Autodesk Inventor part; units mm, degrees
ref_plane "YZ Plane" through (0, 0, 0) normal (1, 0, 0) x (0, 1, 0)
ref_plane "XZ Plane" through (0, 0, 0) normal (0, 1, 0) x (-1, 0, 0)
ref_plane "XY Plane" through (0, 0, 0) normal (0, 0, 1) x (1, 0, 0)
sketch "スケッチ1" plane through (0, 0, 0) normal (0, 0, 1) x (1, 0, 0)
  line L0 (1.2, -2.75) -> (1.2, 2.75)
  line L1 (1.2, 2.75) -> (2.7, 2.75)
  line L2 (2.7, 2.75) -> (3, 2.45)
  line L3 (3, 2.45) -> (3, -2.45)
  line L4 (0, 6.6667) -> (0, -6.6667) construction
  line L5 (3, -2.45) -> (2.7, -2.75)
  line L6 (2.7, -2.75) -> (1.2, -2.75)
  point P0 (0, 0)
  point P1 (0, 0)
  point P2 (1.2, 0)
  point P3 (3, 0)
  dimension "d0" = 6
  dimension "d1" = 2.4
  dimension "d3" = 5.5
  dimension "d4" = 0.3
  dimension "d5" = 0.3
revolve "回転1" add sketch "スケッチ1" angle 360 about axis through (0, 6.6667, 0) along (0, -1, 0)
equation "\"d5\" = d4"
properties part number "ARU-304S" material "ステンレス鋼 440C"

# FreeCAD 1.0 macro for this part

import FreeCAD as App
import Part
import Sketcher

V = App.Vector
Q = App.Units.Quantity


def add_polygon(sketch, points):
    """Adds a closed chain of lines whose ends are joined by coincident constraints."""
    first, n = sketch.GeometryCount, len(points)
    for a, b in zip(points, points[1:] + points[:1]):
        sketch.addGeometry(Part.LineSegment(App.Vector(*a, 0), App.Vector(*b, 0)), False)
    for i in range(n):
        sketch.addConstraint(Sketcher.Constraint("Coincident", first + i, 2, first + (i + 1) % n, 1))

doc = App.newDocument("Part")
body = doc.addObject("PartDesign::Body", "Body")

# Sketch on XY plane
sketch1 = body.newObject("Sketcher::SketchObject", "Sketch")
sketch1.AttachmentSupport = (doc.getObject("XY_Plane"), [""])
sketch1.MapMode = "FlatFace"
add_polygon(sketch1, [(1.2, 2.75), (1.2, -2.75), (2.7, -2.75), (3, -2.45), (3, 2.45), (2.7, 2.75)])  # lines 0-5
sketch1.addConstraint([
    Sketcher.Constraint("Vertical", 0),
    Sketcher.Constraint("Horizontal", 1),
    Sketcher.Constraint("Vertical", 3),
    Sketcher.Constraint("Horizontal", 5),
    Sketcher.Constraint("Symmetric", 1, 2, 4, 2, -1),
    Sketcher.Constraint("Perpendicular", 2, 4),
    Sketcher.Constraint("Equal", 2, 4),
    Sketcher.Constraint("DistanceY", 0, 2, 0, 1, Q("5.5 mm")),
    Sketcher.Constraint("DistanceX", 1, 2, 2, 2, Q("0.3 mm")),
    Sketcher.Constraint("DistanceX", 1, 1, 1, 2, Q("1.5 mm")),
    Sketcher.Constraint("DistanceX", -1, 1, 2, 2, Q("3 mm")),
])
revolution = body.newObject("PartDesign::Revolution", "Revolution")
revolution.Profile = sketch1
revolution.ReferenceAxis = (sketch1, ["V_Axis"])
revolution.Angle = 360

doc.recompute()
